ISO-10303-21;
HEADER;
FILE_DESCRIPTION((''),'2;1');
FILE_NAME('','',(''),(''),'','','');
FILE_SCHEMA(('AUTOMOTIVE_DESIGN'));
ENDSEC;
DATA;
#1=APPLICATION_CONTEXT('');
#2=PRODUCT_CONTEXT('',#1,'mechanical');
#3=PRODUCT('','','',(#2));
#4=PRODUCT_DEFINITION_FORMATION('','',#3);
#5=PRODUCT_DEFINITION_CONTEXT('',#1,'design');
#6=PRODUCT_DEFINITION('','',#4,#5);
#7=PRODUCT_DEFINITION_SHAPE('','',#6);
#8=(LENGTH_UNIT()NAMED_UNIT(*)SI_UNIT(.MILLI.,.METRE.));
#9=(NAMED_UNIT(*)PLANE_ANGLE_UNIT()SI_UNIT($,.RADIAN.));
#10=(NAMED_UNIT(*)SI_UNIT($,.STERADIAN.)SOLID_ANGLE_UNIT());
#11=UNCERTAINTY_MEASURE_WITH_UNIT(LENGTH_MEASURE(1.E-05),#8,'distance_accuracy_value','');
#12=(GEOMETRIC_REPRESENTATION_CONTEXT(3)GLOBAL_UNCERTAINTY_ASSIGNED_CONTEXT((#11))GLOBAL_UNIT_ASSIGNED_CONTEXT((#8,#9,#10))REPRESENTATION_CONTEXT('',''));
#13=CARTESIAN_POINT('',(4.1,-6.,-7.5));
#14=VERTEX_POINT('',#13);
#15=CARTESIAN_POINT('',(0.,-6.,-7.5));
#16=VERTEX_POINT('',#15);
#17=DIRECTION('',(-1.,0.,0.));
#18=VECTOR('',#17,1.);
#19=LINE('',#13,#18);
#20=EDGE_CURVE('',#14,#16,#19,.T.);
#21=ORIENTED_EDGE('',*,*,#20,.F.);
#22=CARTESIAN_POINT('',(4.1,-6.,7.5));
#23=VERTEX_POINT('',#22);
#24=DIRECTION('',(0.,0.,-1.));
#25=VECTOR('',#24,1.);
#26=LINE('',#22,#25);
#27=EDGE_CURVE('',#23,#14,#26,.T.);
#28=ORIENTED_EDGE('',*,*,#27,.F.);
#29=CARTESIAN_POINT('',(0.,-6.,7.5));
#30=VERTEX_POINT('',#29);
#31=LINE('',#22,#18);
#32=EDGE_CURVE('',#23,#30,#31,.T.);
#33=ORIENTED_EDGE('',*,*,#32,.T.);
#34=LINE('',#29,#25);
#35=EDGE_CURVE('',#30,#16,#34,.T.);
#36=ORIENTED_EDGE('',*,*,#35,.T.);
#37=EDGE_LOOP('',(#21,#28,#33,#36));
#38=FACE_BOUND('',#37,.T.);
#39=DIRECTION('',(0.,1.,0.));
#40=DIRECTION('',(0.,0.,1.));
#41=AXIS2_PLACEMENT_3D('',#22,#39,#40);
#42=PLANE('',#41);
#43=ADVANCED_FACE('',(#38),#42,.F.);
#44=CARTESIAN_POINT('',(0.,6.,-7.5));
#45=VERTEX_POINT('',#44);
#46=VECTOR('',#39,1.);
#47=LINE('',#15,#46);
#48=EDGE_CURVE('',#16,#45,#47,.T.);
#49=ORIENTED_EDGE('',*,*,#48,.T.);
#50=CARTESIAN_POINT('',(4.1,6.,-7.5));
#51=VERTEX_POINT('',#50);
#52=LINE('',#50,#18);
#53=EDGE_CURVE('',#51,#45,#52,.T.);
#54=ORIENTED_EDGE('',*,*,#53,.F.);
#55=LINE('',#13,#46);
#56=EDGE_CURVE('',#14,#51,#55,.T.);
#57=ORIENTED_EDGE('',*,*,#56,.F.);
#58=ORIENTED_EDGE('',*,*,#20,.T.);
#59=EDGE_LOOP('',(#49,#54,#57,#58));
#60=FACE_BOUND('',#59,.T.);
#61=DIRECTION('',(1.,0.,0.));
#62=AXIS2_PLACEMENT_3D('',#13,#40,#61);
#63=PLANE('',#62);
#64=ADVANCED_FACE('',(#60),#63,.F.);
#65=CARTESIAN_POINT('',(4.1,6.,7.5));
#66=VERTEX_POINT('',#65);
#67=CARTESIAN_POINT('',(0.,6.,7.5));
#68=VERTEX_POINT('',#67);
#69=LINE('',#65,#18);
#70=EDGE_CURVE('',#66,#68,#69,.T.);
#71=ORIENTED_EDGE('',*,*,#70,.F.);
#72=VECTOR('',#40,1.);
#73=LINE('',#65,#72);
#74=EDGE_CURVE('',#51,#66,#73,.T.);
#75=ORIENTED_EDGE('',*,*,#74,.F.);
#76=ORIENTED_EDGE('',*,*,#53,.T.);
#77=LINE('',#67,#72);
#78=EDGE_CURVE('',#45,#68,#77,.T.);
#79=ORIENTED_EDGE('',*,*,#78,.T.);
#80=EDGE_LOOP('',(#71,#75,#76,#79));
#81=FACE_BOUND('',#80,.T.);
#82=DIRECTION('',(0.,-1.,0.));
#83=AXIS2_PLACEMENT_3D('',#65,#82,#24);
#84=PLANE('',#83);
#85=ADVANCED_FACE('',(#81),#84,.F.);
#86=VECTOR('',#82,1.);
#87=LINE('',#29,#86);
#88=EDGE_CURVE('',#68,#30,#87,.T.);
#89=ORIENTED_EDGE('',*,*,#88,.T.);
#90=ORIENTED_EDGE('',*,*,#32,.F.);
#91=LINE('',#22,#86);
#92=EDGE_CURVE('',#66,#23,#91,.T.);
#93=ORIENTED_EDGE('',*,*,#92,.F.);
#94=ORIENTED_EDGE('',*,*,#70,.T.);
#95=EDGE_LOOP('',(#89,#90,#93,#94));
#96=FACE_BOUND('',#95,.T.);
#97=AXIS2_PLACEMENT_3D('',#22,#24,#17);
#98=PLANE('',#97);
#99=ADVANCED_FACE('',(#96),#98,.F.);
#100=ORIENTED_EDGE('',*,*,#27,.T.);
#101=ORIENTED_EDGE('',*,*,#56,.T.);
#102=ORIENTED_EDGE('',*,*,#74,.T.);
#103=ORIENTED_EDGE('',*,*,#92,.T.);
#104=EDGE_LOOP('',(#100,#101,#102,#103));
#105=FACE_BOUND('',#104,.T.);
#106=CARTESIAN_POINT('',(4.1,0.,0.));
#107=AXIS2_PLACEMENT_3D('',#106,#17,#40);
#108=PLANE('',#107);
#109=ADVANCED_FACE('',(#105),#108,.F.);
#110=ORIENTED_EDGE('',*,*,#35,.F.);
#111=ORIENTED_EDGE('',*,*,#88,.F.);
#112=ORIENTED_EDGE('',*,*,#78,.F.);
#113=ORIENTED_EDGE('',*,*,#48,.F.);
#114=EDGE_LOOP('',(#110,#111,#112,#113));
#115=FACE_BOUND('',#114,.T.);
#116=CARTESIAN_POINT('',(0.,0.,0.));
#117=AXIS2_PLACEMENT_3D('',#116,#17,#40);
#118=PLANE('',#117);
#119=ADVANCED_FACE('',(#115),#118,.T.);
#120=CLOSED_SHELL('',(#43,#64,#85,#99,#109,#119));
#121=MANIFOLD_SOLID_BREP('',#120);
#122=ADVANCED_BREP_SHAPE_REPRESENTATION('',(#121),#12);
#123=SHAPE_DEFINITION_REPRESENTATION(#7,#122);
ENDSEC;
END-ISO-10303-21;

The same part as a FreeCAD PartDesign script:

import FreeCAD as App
import Part
import Sketcher
from FreeCAD import Vector


def add_polygon(sketch, points):
    """Adds a closed chain of lines whose ends are joined by coincident constraints."""
    first, n = sketch.GeometryCount, len(points)
    for a, b in zip(points, points[1:] + points[:1]):
        sketch.addGeometry(Part.LineSegment(App.Vector(*a, 0), App.Vector(*b, 0)), False)
    for i in range(n):
        sketch.addConstraint(Sketcher.Constraint("Coincident", first + i, 2, first + (i + 1) % n, 1))

doc = App.newDocument("Part")
body = doc.addObject("PartDesign::Body", "Body")

# Sketch on YZ plane
sketch1 = doc.addObject("Sketcher::SketchObject", "Sketch")
body.addObject(sketch1)
sketch1.AttachmentSupport = (doc.YZ_Plane, [""])
sketch1.MapMode = "FlatFace"
add_polygon(sketch1, [(6, 8), (-6, 8), (-6, -8), (6, -8)])  # lines 0-3
sketch1.addConstraint([
    Sketcher.Constraint("Horizontal", 0),
    Sketcher.Constraint("Vertical", 1),
    Sketcher.Constraint("Horizontal", 2),
    Sketcher.Constraint("Vertical", 3),
    Sketcher.Constraint("Symmetric", 0, 2, 2, 2, -1, 1),
    Sketcher.Constraint("DistanceX", 0, 2, 0, 1, 12.0),
    Sketcher.Constraint("DistanceY", 1, 2, 1, 1, 15.0),
])
pad1 = doc.addObject("PartDesign::Pad", "Pad")
body.addObject(pad1)
pad1.Profile = sketch1
pad1.Length = 4.1

doc.recompute()
